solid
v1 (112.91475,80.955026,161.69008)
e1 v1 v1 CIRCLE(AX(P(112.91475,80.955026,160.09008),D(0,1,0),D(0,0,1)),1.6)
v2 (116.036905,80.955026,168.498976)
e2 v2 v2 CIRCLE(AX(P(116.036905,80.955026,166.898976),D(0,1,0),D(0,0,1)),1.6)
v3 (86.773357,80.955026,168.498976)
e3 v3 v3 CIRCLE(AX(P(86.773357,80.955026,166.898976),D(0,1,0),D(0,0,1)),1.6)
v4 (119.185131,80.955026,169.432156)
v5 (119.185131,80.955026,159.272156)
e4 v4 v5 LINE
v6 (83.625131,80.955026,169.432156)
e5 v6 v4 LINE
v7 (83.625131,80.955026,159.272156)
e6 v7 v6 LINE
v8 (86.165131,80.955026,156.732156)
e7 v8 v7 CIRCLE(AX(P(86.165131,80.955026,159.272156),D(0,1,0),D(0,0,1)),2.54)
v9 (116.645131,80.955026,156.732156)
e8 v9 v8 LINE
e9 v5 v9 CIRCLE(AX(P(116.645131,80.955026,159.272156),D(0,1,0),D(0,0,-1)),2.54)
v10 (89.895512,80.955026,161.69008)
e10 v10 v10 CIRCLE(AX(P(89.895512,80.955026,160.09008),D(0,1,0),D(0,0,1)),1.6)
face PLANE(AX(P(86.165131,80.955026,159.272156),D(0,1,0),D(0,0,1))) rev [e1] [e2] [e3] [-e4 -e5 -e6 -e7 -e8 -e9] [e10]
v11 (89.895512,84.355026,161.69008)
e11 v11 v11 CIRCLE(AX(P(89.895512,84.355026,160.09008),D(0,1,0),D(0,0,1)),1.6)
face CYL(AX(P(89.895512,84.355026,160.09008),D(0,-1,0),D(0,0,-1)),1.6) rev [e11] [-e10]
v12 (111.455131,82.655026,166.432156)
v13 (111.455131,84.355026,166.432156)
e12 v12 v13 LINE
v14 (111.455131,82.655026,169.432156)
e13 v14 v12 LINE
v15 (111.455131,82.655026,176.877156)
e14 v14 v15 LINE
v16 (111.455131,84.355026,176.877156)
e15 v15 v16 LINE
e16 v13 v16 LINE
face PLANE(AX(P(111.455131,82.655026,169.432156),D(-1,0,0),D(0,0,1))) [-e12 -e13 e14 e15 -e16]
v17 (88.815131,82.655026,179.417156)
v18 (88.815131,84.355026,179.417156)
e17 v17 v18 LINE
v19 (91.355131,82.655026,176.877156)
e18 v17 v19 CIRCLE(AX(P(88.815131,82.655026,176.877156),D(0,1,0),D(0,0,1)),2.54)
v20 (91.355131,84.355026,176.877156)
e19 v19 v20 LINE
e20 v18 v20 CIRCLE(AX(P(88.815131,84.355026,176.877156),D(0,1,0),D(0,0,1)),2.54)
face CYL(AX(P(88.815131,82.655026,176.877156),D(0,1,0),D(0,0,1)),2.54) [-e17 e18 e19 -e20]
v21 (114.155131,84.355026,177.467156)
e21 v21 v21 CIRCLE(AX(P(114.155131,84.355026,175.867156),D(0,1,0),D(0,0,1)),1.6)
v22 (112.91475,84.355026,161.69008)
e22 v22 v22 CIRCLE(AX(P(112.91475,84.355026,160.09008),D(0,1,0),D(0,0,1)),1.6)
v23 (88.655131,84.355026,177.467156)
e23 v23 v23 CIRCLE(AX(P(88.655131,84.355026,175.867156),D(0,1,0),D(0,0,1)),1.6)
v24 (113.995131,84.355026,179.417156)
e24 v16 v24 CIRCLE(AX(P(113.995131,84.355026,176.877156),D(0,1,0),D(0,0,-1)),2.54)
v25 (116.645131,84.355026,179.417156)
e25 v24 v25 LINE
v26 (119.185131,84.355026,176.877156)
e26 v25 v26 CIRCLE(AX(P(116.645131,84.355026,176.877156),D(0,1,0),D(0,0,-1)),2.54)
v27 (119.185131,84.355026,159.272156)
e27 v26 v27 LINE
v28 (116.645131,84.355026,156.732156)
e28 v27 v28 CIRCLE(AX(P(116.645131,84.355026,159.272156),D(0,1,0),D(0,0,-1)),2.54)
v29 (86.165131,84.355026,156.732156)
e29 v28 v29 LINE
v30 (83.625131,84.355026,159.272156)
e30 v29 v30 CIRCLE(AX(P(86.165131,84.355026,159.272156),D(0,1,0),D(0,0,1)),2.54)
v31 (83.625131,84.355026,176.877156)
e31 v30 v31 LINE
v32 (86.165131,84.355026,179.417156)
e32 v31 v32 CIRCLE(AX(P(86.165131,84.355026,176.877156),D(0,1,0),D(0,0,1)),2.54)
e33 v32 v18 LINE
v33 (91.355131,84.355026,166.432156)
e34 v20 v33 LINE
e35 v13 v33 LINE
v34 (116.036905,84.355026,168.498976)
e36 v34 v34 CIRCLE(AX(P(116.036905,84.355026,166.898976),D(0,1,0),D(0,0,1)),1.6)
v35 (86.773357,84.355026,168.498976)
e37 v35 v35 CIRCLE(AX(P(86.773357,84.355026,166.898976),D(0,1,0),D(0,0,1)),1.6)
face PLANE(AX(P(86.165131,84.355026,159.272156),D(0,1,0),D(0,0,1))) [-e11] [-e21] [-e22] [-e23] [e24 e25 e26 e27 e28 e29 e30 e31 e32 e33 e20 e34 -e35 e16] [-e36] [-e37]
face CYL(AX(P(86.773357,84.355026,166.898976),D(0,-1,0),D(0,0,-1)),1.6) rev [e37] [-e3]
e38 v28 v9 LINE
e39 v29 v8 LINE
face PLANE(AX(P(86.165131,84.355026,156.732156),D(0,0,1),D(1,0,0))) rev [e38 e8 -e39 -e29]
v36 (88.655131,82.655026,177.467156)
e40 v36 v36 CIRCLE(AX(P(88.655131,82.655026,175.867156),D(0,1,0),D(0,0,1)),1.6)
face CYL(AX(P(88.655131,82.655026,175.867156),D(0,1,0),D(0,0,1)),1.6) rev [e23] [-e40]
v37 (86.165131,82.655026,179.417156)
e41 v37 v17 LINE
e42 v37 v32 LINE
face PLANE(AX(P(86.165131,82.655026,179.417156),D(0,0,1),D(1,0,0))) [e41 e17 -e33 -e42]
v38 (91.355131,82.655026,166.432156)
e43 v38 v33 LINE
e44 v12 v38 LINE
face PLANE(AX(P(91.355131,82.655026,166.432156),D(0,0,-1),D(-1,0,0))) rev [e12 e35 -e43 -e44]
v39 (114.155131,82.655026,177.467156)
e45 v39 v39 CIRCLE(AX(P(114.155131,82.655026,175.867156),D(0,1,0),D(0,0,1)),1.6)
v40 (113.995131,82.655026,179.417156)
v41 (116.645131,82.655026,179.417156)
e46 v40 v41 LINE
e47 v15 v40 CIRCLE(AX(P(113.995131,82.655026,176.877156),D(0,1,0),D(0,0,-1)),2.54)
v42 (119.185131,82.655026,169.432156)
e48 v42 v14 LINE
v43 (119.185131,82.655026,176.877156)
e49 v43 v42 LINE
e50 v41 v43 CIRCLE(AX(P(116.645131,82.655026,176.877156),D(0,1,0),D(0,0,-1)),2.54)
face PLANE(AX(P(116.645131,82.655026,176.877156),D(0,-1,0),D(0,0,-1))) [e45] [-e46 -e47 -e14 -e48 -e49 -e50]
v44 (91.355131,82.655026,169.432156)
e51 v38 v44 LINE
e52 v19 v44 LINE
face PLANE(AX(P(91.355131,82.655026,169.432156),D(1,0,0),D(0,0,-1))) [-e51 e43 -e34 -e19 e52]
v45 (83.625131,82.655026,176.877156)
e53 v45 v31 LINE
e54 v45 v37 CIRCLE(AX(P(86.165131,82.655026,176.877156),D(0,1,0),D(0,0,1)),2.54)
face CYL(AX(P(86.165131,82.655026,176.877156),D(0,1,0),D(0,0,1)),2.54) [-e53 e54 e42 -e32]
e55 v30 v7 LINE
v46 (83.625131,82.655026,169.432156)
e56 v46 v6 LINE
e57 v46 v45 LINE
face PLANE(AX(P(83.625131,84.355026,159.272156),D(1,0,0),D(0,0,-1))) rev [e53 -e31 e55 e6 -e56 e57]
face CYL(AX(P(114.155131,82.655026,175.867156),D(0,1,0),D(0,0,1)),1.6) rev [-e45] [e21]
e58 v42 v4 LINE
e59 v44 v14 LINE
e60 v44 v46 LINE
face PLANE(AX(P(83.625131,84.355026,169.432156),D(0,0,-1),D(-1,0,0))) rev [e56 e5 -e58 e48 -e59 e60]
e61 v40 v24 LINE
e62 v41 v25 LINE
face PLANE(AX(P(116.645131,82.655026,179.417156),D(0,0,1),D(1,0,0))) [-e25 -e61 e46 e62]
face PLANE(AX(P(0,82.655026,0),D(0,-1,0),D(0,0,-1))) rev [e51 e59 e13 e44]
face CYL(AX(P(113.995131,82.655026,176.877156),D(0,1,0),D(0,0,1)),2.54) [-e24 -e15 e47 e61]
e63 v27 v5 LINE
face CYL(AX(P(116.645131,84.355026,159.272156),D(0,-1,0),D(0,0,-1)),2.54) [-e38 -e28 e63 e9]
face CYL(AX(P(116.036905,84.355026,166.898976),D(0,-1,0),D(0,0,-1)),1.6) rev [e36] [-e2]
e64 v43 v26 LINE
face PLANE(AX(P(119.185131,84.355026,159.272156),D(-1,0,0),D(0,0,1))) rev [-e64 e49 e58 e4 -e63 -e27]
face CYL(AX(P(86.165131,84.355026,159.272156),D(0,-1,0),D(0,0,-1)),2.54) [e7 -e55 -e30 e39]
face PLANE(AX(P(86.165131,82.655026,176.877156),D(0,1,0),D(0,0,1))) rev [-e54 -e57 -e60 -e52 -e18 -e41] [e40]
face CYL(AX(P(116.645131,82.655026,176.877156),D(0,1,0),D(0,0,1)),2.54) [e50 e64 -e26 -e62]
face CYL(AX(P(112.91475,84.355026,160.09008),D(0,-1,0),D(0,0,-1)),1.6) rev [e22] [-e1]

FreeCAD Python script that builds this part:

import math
import FreeCAD as App
import Part
import Sketcher
from FreeCAD import Vector


def add_polygon(sketch, points):
    """Adds a closed chain of lines whose ends are joined by coincident constraints."""
    first, n = sketch.GeometryCount, len(points)
    for a, b in zip(points, points[1:] + points[:1]):
        sketch.addGeometry(Part.LineSegment(App.Vector(*a, 0), App.Vector(*b, 0)), False)
    for i in range(n):
        sketch.addConstraint(Sketcher.Constraint("Coincident", first + i, 2, first + (i + 1) % n, 1))

doc = App.newDocument("Part")
body = doc.addObject("PartDesign::Body", "Body")

# Sketch on XZ plane
sketch1 = body.newObject("Sketcher::SketchObject", "Sketch")
sketch1.AttachmentSupport = (doc.getObject("XZ_Plane"), [""])
sketch1.MapMode = "FlatFace"
sketch1.AttachmentOffset = App.Placement(Vector(0, 0, -80.955026), App.Rotation())
sketch1.addGeometry(Part.LineSegment(Vector(116.6, 156.7, 0), Vector(86.2, 156.7, 0)), False)
sketch1.addGeometry(Part.ArcOfCircle(Part.Circle(Vector(86.2, 159.3, 0), Vector(0, 0, 1), 2.5), math.radians(180), math.radians(270)), False)
sketch1.addGeometry(Part.LineSegment(Vector(83.6, 159.3, 0), Vector(83.6, 169.4, 0)), False)
sketch1.addGeometry(Part.LineSegment(Vector(83.6, 169.4, 0), Vector(119.2, 169.4, 0)), False)
sketch1.addGeometry(Part.LineSegment(Vector(119.2, 169.4, 0), Vector(119.2, 159.3, 0)), False)
sketch1.addGeometry(Part.ArcOfCircle(Part.Circle(Vector(116.6, 159.3, 0), Vector(0, 0, 1), 2.5), math.radians(-90), math.radians(0)), False)
sketch1.addGeometry(Part.Circle(Vector(116, 166.9, 0), Vector(0, 0, 1), 1.6), False)
sketch1.addGeometry(Part.Circle(Vector(86.8, 166.9, 0), Vector(0, 0, 1), 1.6), False)
sketch1.addGeometry(Part.Circle(Vector(112.9, 160.1, 0), Vector(0, 0, 1), 1.6), False)
sketch1.addGeometry(Part.Circle(Vector(89.9, 160.1, 0), Vector(0, 0, 1), 1.6), False)
sketch1.addConstraint(Sketcher.Constraint("Tangent", 0, 2, 1, 2))
sketch1.addConstraint(Sketcher.Constraint("Tangent", 1, 1, 2, 1))
sketch1.addConstraint(Sketcher.Constraint("Coincident", 2, 2, 3, 1))
sketch1.addConstraint(Sketcher.Constraint("Coincident", 3, 2, 4, 1))
sketch1.addConstraint(Sketcher.Constraint("Tangent", 4, 2, 5, 2))
sketch1.addConstraint(Sketcher.Constraint("Tangent", 5, 1, 0, 1))
sketch1.addConstraint(Sketcher.Constraint("Horizontal", 0))
sketch1.addConstraint(Sketcher.Constraint("Vertical", 2))
sketch1.addConstraint(Sketcher.Constraint("Horizontal", 3))
sketch1.addConstraint(Sketcher.Constraint("Vertical", 4))
sketch1.addConstraint(Sketcher.Constraint("Equal", 1, 5))
sketch1.addConstraint(Sketcher.Constraint("Equal", 6, 7))
sketch1.addConstraint(Sketcher.Constraint("Equal", 7, 8))
sketch1.addConstraint(Sketcher.Constraint("Equal", 8, 9))
sketch1.addConstraint(Sketcher.Constraint("Horizontal", 6, 3, 7, 3))
sketch1.addConstraint(Sketcher.Constraint("Horizontal", 8, 3, 9, 3))
sketch1.addConstraint(Sketcher.Constraint("Diameter", 6, 3.2))
sketch1.addConstraint(Sketcher.Constraint("Radius", 1, 2.54))
sketch1.addConstraint(Sketcher.Constraint("DistanceX", 0, 2, 0, 1, 30.48))
sketch1.addConstraint(Sketcher.Constraint("DistanceY", 2, 1, 2, 2, 10.16))
sketch1.addConstraint(Sketcher.Constraint("DistanceX", -1, 1, 1, 3, 86.165131))
sketch1.addConstraint(Sketcher.Constraint("DistanceX", -1, 1, 8, 3, 112.91475))
sketch1.addConstraint(Sketcher.Constraint("DistanceY", -1, 1, 8, 3, 160.09008))
sketch1.addConstraint(Sketcher.Constraint("DistanceX", -1, 1, 9, 3, 89.895512))
sketch1.addConstraint(Sketcher.Constraint("DistanceY", 5, 3, 6, 3, 7.62682))
sketch1.addConstraint(Sketcher.Constraint("DistanceX", 7, 3, 6, 3, 29.263548))
sketch1.addConstraint(Sketcher.Constraint("DistanceY", -1, 1, 1, 3, 159.272156))
sketch1.addConstraint(Sketcher.Constraint("DistanceX", -1, 1, 6, 3, 116.036905))
pad1 = body.newObject("PartDesign::Pad", "Pad")
pad1.Profile = sketch1
pad1.Length = 3.4
pad1.Reversed = True

# Sketch on XZ plane
sketch2 = body.newObject("Sketcher::SketchObject", "Sketch001")
sketch2.AttachmentSupport = (doc.getObject("XZ_Plane"), [""])
sketch2.MapMode = "FlatFace"
sketch2.AttachmentOffset = App.Placement(Vector(0, 0, -84.355026), App.Rotation())
sketch2.addGeometry(Part.LineSegment(Vector(91.4, 169.4, 0), Vector(83.6, 169.4, 0)), False)
sketch2.addGeometry(Part.LineSegment(Vector(83.6, 169.4, 0), Vector(83.6, 176.9, 0)), False)
sketch2.addGeometry(Part.ArcOfCircle(Part.Circle(Vector(86.2, 176.9, 0), Vector(0, 0, 1), 2.5), math.radians(90), math.radians(180)), False)
sketch2.addGeometry(Part.LineSegment(Vector(86.2, 179.4, 0), Vector(88.8, 179.4, 0)), False)
sketch2.addGeometry(Part.ArcOfCircle(Part.Circle(Vector(88.8, 176.9, 0), Vector(0, 0, 1), 2.5), math.radians(0), math.radians(90)), False)
sketch2.addGeometry(Part.LineSegment(Vector(91.4, 176.9, 0), Vector(91.4, 169.4, 0)), False)
sketch2.addGeometry(Part.Circle(Vector(88.7, 175.9, 0), Vector(0, 0, 1), 1.6), False)
sketch2.addGeometry(Part.LineSegment(Vector(119.2, 169.4, 0), Vector(111.5, 169.4, 0)), False)
sketch2.addGeometry(Part.LineSegment(Vector(111.5, 169.4, 0), Vector(111.5, 176.9, 0)), False)
sketch2.addGeometry(Part.ArcOfCircle(Part.Circle(Vector(114, 176.9, 0), Vector(0, 0, 1), 2.5), math.radians(90), math.radians(180)), False)
sketch2.addGeometry(Part.LineSegment(Vector(114, 179.4, 0), Vector(116.6, 179.4, 0)), False)
sketch2.addGeometry(Part.ArcOfCircle(Part.Circle(Vector(116.6, 176.9, 0), Vector(0, 0, 1), 2.5), math.radians(0), math.radians(90)), False)
sketch2.addGeometry(Part.LineSegment(Vector(119.2, 176.9, 0), Vector(119.2, 169.4, 0)), False)
sketch2.addGeometry(Part.Circle(Vector(114.2, 175.9, 0), Vector(0, 0, 1), 1.6), False)
sketch2.addConstraint(Sketcher.Constraint("Coincident", 0, 2, 1, 1))
sketch2.addConstraint(Sketcher.Constraint("Tangent", 1, 2, 2, 2))
sketch2.addConstraint(Sketcher.Constraint("Tangent", 2, 1, 3, 1))
sketch2.addConstraint(Sketcher.Constraint("Tangent", 3, 2, 4, 2))
sketch2.addConstraint(Sketcher.Constraint("Tangent", 4, 1, 5, 1))
sketch2.addConstraint(Sketcher.Constraint("Coincident", 5, 2, 0, 1))
sketch2.addConstraint(Sketcher.Constraint("Coincident", 7, 2, 8, 1))
sketch2.addConstraint(Sketcher.Constraint("Tangent", 8, 2, 9, 2))
sketch2.addConstraint(Sketcher.Constraint("Tangent", 9, 1, 10, 1))
sketch2.addConstraint(Sketcher.Constraint("Tangent", 10, 2, 11, 2))
sketch2.addConstraint(Sketcher.Constraint("Tangent", 11, 1, 12, 1))
sketch2.addConstraint(Sketcher.Constraint("Coincident", 12, 2, 7, 1))
sketch2.addConstraint(Sketcher.Constraint("Horizontal", 0))
sketch2.addConstraint(Sketcher.Constraint("Vertical", 1))
sketch2.addConstraint(Sketcher.Constraint("Horizontal", 3))
sketch2.addConstraint(Sketcher.Constraint("Vertical", 5))
sketch2.addConstraint(Sketcher.Constraint("Horizontal", 7))
sketch2.addConstraint(Sketcher.Constraint("Vertical", 8))
sketch2.addConstraint(Sketcher.Constraint("Horizontal", 10))
sketch2.addConstraint(Sketcher.Constraint("Vertical", 12))
sketch2.addConstraint(Sketcher.Constraint("Equal", 2, 4))
sketch2.addConstraint(Sketcher.Constraint("Equal", 4, 9))
sketch2.addConstraint(Sketcher.Constraint("Equal", 9, 11))
sketch2.addConstraint(Sketcher.Constraint("Equal", 6, 13))
sketch2.addConstraint(Sketcher.Constraint("Horizontal", 4, 3, 9, 3))
sketch2.addConstraint(Sketcher.Constraint("Horizontal", 6, 3, 13, 3))
sketch2.addConstraint(Sketcher.Constraint("Horizontal", 5, 2, 7, 2))
sketch2.addConstraint(Sketcher.Constraint("Equal", 0, 7))
sketch2.addConstraint(Sketcher.Constraint("Diameter", 6, 3.2))
sketch2.addConstraint(Sketcher.Constraint("Radius", 2, 2.54))
sketch2.addConstraint(Sketcher.Constraint("DistanceX", 0, 2, 0, 1, 7.73))
sketch2.addConstraint(Sketcher.Constraint("DistanceX", 6, 3, 13, 3, 25.5))
sketch2.addConstraint(Sketcher.Constraint("DistanceX", 6, 3, 4, 1, 2.7))
sketch2.addConstraint(Sketcher.Constraint("DistanceX", 7, 2, 13, 3, 2.7))
sketch2.addConstraint(Sketcher.Constraint("DistanceY", 1, 1, 1, 2, 7.445))
sketch2.addConstraint(Sketcher.Constraint("DistanceY", 6, 3, 4, 3, 1.01))
sketch2.addConstraint(Sketcher.Constraint("DistanceX", -1, 1, 2, 3, 86.165131))
sketch2.addConstraint(Sketcher.Constraint("DistanceY", -1, 1, 2, 3, 176.877156))
pad2 = body.newObject("PartDesign::Pad", "Pad001")
pad2.Profile = sketch2
pad2.Length = 1.7

# Sketch on XZ plane
sketch3 = body.newObject("Sketcher::SketchObject", "Sketch002")
sketch3.AttachmentSupport = (doc.getObject("XZ_Plane"), [""])
sketch3.MapMode = "FlatFace"
sketch3.AttachmentOffset = App.Placement(Vector(0, 0, -84.355026), App.Rotation())
add_polygon(sketch3, [(91.4, 166.4), (91.4, 169.4), (111.5, 169.4), (111.5, 166.4)])  # lines 0-3
sketch3.addConstraint(Sketcher.Constraint("Vertical", 0))
sketch3.addConstraint(Sketcher.Constraint("Horizontal", 1))
sketch3.addConstraint(Sketcher.Constraint("Vertical", 2))
sketch3.addConstraint(Sketcher.Constraint("Horizontal", 3))
sketch3.addConstraint(Sketcher.Constraint("DistanceY", 0, 1, 0, 2, 3.0))
sketch3.addConstraint(Sketcher.Constraint("DistanceX", 1, 1, 1, 2, 20.1))
sketch3.addConstraint(Sketcher.Constraint("DistanceX", -1, 1, 0, 2, 91.355131))
sketch3.addConstraint(Sketcher.Constraint("DistanceY", -1, 1, 0, 2, 169.432156))
pocket1 = body.newObject("PartDesign::Pocket", "Pocket")
pocket1.Profile = sketch3
pocket1.Length = 1.7
pocket1.Reversed = True

doc.recompute()
